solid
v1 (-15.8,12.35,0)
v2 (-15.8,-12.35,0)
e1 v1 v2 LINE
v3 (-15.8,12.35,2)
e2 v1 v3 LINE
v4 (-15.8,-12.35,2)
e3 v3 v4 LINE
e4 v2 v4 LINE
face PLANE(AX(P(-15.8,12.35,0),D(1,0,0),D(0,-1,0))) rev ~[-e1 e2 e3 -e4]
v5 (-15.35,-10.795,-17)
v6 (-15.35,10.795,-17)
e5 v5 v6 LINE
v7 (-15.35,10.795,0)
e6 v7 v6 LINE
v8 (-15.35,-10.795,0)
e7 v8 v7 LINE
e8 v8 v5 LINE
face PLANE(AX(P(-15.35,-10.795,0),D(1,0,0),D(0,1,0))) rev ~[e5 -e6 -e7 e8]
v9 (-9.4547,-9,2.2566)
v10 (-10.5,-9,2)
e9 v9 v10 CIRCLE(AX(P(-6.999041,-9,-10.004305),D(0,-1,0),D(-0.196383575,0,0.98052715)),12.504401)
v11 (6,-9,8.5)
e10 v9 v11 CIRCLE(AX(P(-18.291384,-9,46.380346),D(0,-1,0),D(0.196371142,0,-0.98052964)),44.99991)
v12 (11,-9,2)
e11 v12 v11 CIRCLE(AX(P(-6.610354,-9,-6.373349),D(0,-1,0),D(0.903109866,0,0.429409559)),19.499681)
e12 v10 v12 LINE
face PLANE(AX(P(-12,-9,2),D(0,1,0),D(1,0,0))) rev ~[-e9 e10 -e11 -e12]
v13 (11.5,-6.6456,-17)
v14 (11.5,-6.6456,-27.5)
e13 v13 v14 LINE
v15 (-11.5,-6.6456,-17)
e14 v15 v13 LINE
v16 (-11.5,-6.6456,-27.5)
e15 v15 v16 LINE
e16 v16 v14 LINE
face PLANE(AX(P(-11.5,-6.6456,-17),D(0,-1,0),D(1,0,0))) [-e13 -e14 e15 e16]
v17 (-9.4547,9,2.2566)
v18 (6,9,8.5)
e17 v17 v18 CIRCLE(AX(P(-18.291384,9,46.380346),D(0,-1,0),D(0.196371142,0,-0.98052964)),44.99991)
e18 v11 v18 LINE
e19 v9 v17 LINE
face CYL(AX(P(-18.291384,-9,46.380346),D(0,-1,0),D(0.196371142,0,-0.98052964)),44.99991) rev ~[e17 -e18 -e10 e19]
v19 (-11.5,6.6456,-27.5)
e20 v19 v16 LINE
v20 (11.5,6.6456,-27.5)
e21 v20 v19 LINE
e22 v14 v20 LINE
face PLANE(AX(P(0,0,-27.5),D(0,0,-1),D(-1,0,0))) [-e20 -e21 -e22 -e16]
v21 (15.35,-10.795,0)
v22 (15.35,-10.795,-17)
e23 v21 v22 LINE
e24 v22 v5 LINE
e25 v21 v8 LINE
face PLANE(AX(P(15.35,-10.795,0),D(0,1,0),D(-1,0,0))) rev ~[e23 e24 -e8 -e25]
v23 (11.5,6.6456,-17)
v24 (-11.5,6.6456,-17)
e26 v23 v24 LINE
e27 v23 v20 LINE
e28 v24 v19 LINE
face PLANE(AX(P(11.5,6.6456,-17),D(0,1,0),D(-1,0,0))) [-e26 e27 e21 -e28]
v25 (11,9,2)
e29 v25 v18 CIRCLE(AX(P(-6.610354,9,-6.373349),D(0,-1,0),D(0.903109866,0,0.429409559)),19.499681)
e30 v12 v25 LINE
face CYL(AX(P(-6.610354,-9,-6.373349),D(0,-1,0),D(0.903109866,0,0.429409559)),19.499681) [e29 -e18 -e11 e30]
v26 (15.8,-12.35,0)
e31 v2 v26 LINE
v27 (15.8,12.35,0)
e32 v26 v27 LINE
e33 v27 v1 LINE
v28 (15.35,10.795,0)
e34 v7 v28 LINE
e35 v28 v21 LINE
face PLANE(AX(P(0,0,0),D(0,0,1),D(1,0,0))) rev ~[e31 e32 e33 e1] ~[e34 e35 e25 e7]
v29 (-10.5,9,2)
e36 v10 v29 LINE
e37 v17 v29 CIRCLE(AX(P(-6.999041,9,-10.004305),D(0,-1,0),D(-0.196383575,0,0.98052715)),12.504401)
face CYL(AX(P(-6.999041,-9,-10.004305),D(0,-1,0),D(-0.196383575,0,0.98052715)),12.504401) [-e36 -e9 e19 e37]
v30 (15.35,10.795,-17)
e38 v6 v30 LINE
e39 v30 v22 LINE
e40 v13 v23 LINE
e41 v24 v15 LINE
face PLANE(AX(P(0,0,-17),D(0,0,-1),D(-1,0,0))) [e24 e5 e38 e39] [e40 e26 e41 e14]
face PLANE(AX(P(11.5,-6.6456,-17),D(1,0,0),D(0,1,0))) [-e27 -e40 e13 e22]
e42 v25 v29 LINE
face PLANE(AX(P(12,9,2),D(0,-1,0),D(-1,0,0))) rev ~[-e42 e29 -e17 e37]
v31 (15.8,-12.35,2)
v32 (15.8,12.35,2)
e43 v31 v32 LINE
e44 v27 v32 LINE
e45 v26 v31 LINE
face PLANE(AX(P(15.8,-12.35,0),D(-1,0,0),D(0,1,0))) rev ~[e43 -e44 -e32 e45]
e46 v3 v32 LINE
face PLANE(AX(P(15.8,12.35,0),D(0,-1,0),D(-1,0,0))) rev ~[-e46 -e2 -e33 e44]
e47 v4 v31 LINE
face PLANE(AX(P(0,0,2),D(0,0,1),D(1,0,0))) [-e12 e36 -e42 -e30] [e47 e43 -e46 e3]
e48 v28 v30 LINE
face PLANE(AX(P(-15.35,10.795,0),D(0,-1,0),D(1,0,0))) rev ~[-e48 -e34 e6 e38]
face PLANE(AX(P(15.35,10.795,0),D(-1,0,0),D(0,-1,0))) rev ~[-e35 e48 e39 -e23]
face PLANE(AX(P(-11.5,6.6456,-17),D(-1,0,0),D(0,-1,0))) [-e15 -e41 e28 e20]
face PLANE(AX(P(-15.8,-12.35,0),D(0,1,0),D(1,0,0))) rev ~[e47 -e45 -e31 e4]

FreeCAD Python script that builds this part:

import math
import FreeCAD as App
import Part
import Sketcher
from FreeCAD import Vector

doc = App.newDocument("Part")
body = doc.addObject("PartDesign::Body", "Body")

sketch1 = doc.addObject("Sketcher::SketchObject", "Sketch")
body.addObject(sketch1)
sketch1.AttachmentSupport = (doc.XY_Plane, [""])
sketch1.MapMode = "FlatFace"
sketch1.addGeometry(Part.LineSegment(Vector(-16, 12, 0), Vector(-16, -12, 0)), False)
sketch1.addGeometry(Part.LineSegment(Vector(-16, -12, 0), Vector(16, -12, 0)), False)
sketch1.addGeometry(Part.LineSegment(Vector(16, -12, 0), Vector(16, 12, 0)), False)
sketch1.addGeometry(Part.LineSegment(Vector(16, 12, 0), Vector(-16, 12, 0)), False)
sketch1.addConstraint(Sketcher.Constraint("Coincident", 0, 2, 1, 1))
sketch1.addConstraint(Sketcher.Constraint("Coincident", 1, 2, 2, 1))
sketch1.addConstraint(Sketcher.Constraint("Coincident", 2, 2, 3, 1))
sketch1.addConstraint(Sketcher.Constraint("Coincident", 3, 2, 0, 1))
sketch1.addConstraint(Sketcher.Constraint("Vertical", 0))
sketch1.addConstraint(Sketcher.Constraint("Horizontal", 1))
sketch1.addConstraint(Sketcher.Constraint("Vertical", 2))
sketch1.addConstraint(Sketcher.Constraint("Horizontal", 3))
sketch1.addConstraint(Sketcher.Constraint("Symmetric", 0, 2, 2, 2, -1, 1))
sketch1.addConstraint(Sketcher.Constraint("DistanceX", 1, 1, 1, 2, 31.6))
sketch1.addConstraint(Sketcher.Constraint("DistanceY", 0, 2, 0, 1, 24.7))
pad1 = doc.addObject("PartDesign::Pad", "Pad")
body.addObject(pad1)
pad1.Profile = sketch1
pad1.Length = 2

sketch2 = doc.addObject("Sketcher::SketchObject", "Sketch001")
body.addObject(sketch2)
sketch2.AttachmentSupport = (doc.XY_Plane, [""])
sketch2.MapMode = "FlatFace"
sketch2.AttachmentOffset = App.Placement(Vector(0, 0, 2), App.Rotation())
sketch2.addGeometry(Part.LineSegment(Vector(-12, 9, 0), Vector(-12, -9, 0)), False)
sketch2.addGeometry(Part.LineSegment(Vector(-12, -9, 0), Vector(12, -9, 0)), False)
sketch2.addGeometry(Part.LineSegment(Vector(12, -9, 0), Vector(12, 9, 0)), False)
sketch2.addGeometry(Part.LineSegment(Vector(12, 9, 0), Vector(-12, 9, 0)), False)
sketch2.addConstraint(Sketcher.Constraint("Coincident", 0, 2, 1, 1))
sketch2.addConstraint(Sketcher.Constraint("Coincident", 1, 2, 2, 1))
sketch2.addConstraint(Sketcher.Constraint("Coincident", 2, 2, 3, 1))
sketch2.addConstraint(Sketcher.Constraint("Coincident", 3, 2, 0, 1))
sketch2.addConstraint(Sketcher.Constraint("Vertical", 0))
sketch2.addConstraint(Sketcher.Constraint("Horizontal", 1))
sketch2.addConstraint(Sketcher.Constraint("Vertical", 2))
sketch2.addConstraint(Sketcher.Constraint("Horizontal", 3))
sketch2.addConstraint(Sketcher.Constraint("Symmetric", 0, 2, 2, 2, -1, 1))
sketch2.addConstraint(Sketcher.Constraint("DistanceX", 1, 1, 1, 2, 24.0))
sketch2.addConstraint(Sketcher.Constraint("DistanceY", 0, 2, 0, 1, 18.0))
pad2 = doc.addObject("PartDesign::Pad", "Pad001")
body.addObject(pad2)
pad2.Profile = sketch2
pad2.Length = 6.5

sketch3 = doc.addObject("Sketcher::SketchObject", "Sketch002")
body.addObject(sketch3)
sketch3.AttachmentSupport = (doc.XZ_Plane, [""])
sketch3.MapMode = "FlatFace"
sketch3.AttachmentOffset = App.Placement(Vector(0, 0, 9), App.Rotation())
sketch3.addGeometry(Part.LineSegment(Vector(11, 2, 0), Vector(12, 2, 0)), False)
sketch3.addGeometry(Part.LineSegment(Vector(12, 2, 0), Vector(12, 8.5, 0)), False)
sketch3.addGeometry(Part.LineSegment(Vector(12, 8.5, 0), Vector(6, 8.5, 0)), False)
sketch3.addGeometry(Part.ArcOfCircle(Part.Circle(Vector(-6.6, -6.4, 0), Vector(0, 0, 1), 19.5), math.radians(25), math.radians(50)), False)
sketch3.addGeometry(Part.LineSegment(Vector(-12, 2, 0), Vector(-10.5, 2, 0)), False)
sketch3.addGeometry(Part.ArcOfCircle(Part.Circle(Vector(-7, -10, 0), Vector(0, 0, 1), 12.5), math.radians(101.33), math.radians(106.26)), False)
sketch3.addGeometry(Part.ArcOfCircle(Part.Circle(Vector(-18.3, 46.4, 0), Vector(0, 0, 1), 45), math.radians(-79), math.radians(-57)), False)
sketch3.addGeometry(Part.LineSegment(Vector(6, 8.5, 0), Vector(-12, 8.5, 0)), False)
sketch3.addGeometry(Part.LineSegment(Vector(-12, 8.5, 0), Vector(-12, 2, 0)), False)
sketch3.addConstraint(Sketcher.Constraint("Coincident", 0, 2, 1, 1))
sketch3.addConstraint(Sketcher.Constraint("Coincident", 1, 2, 2, 1))
sketch3.addConstraint(Sketcher.Constraint("Coincident", 2, 2, 3, 2))
sketch3.addConstraint(Sketcher.Constraint("Coincident", 3, 1, 0, 1))
sketch3.addConstraint(Sketcher.Constraint("Coincident", 4, 2, 5, 2))
sketch3.addConstraint(Sketcher.Constraint("Tangent", 5, 1, 6, 1))
sketch3.addConstraint(Sketcher.Constraint("Coincident", 6, 2, 7, 1))
sketch3.addConstraint(Sketcher.Constraint("Coincident", 7, 2, 8, 1))
sketch3.addConstraint(Sketcher.Constraint("Coincident", 8, 2, 4, 1))
sketch3.addConstraint(Sketcher.Constraint("Horizontal", 0))
sketch3.addConstraint(Sketcher.Constraint("Vertical", 1))
sketch3.addConstraint(Sketcher.Constraint("Horizontal", 2))
sketch3.addConstraint(Sketcher.Constraint("Horizontal", 4))
sketch3.addConstraint(Sketcher.Constraint("Horizontal", 7))
sketch3.addConstraint(Sketcher.Constraint("Vertical", 8))
sketch3.addConstraint(Sketcher.Constraint("Coincident", 6, 2, 2, 2))
sketch3.addConstraint(Sketcher.Constraint("Symmetric", 0, 2, 8, 2, -2))
sketch3.addConstraint(Sketcher.Constraint("Radius", 6, 45.0))
sketch3.addConstraint(Sketcher.Constraint("Radius", 3, 19.5))
sketch3.addConstraint(Sketcher.Constraint("DistanceX", 0, 1, 0, 2, 1.0))
sketch3.addConstraint(Sketcher.Constraint("DistanceX", 2, 2, 2, 1, 6.0))
sketch3.addConstraint(Sketcher.Constraint("DistanceX", -1, 1, 0, 2, 12.0))
sketch3.addConstraint(Sketcher.Constraint("DistanceX", 4, 1, 4, 2, 1.5))
sketch3.addConstraint(Sketcher.Constraint("DistanceY", 1, 1, 1, 2, 6.5))
sketch3.addConstraint(Sketcher.Constraint("DistanceY", -1, 1, 0, 2, 2.0))
sketch3.addConstraint(Sketcher.Constraint("Radius", 5, 12.5044))
sketch3.addConstraint(Sketcher.Constraint("DistanceY", 3, 3, 5, 1, 8.63))
pocket1 = doc.addObject("PartDesign::Pocket", "Pocket")
body.addObject(pocket1)
pocket1.Profile = sketch3
pocket1.Type = "ThroughAll"

sketch4 = doc.addObject("Sketcher::SketchObject", "Sketch003")
body.addObject(sketch4)
sketch4.AttachmentSupport = (doc.XY_Plane, [""])
sketch4.MapMode = "FlatFace"
sketch4.addGeometry(Part.LineSegment(Vector(15, 11, 0), Vector(15, -11, 0)), False)
sketch4.addGeometry(Part.LineSegment(Vector(15, -11, 0), Vector(-15, -11, 0)), False)
sketch4.addGeometry(Part.LineSegment(Vector(-15, -11, 0), Vector(-15, 11, 0)), False)
sketch4.addGeometry(Part.LineSegment(Vector(-15, 11, 0), Vector(15, 11, 0)), False)
sketch4.addConstraint(Sketcher.Constraint("Coincident", 0, 2, 1, 1))
sketch4.addConstraint(Sketcher.Constraint("Coincident", 1, 2, 2, 1))
sketch4.addConstraint(Sketcher.Constraint("Coincident", 2, 2, 3, 1))
sketch4.addConstraint(Sketcher.Constraint("Coincident", 3, 2, 0, 1))
sketch4.addConstraint(Sketcher.Constraint("Vertical", 0))
sketch4.addConstraint(Sketcher.Constraint("Horizontal", 1))
sketch4.addConstraint(Sketcher.Constraint("Vertical", 2))
sketch4.addConstraint(Sketcher.Constraint("Horizontal", 3))
sketch4.addConstraint(Sketcher.Constraint("Symmetric", 0, 2, 2, 2, -1, 1))
sketch4.addConstraint(Sketcher.Constraint("DistanceX", 1, 2, 1, 1, 30.7))
sketch4.addConstraint(Sketcher.Constraint("DistanceY", 0, 2, 0, 1, 21.59))
pad3 = doc.addObject("PartDesign::Pad", "Pad002")
body.addObject(pad3)
pad3.Profile = sketch4
pad3.Length = 17
pad3.Reversed = True

sketch5 = doc.addObject("Sketcher::SketchObject", "Sketch004")
body.addObject(sketch5)
sketch5.AttachmentSupport = (doc.XY_Plane, [""])
sketch5.MapMode = "FlatFace"
sketch5.AttachmentOffset = App.Placement(Vector(0, 0, -17), App.Rotation())
sketch5.addGeometry(Part.LineSegment(Vector(12, -7, 0), Vector(-12, -7, 0)), False)
sketch5.addGeometry(Part.LineSegment(Vector(-12, -7, 0), Vector(-12, 7, 0)), False)
sketch5.addGeometry(Part.LineSegment(Vector(-12, 7, 0), Vector(12, 7, 0)), False)
sketch5.addGeometry(Part.LineSegment(Vector(12, 7, 0), Vector(12, -7, 0)), False)
sketch5.addConstraint(Sketcher.Constraint("Coincident", 0, 2, 1, 1))
sketch5.addConstraint(Sketcher.Constraint("Coincident", 1, 2, 2, 1))
sketch5.addConstraint(Sketcher.Constraint("Coincident", 2, 2, 3, 1))
sketch5.addConstraint(Sketcher.Constraint("Coincident", 3, 2, 0, 1))
sketch5.addConstraint(Sketcher.Constraint("Horizontal", 0))
sketch5.addConstraint(Sketcher.Constraint("Vertical", 1))
sketch5.addConstraint(Sketcher.Constraint("Horizontal", 2))
sketch5.addConstraint(Sketcher.Constraint("Vertical", 3))
sketch5.addConstraint(Sketcher.Constraint("Symmetric", 0, 2, 2, 2, -1, 1))
sketch5.addConstraint(Sketcher.Constraint("DistanceX", 0, 2, 0, 1, 23.0))
sketch5.addConstraint(Sketcher.Constraint("DistanceY", 1, 1, 1, 2, 13.2912))
pad4 = doc.addObject("PartDesign::Pad", "Pad003")
body.addObject(pad4)
pad4.Profile = sketch5
pad4.Length = 10.5
pad4.Reversed = True

doc.recompute()
